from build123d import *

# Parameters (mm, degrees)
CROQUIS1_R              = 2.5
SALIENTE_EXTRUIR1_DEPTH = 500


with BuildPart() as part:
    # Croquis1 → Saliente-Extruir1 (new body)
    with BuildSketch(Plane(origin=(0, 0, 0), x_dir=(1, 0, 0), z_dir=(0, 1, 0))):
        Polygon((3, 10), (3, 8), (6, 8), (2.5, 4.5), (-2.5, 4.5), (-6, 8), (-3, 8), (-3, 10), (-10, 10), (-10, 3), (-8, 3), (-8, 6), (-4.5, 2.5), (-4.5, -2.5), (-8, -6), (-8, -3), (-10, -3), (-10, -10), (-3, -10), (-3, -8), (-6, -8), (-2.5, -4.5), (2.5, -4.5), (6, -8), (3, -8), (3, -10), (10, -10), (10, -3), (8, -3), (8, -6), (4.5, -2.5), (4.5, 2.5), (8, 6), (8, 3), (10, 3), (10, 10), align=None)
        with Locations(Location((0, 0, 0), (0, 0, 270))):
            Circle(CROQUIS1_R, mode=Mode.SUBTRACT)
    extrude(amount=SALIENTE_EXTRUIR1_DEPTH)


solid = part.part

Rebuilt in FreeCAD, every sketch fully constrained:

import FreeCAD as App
import Part
import Sketcher

V = App.Vector


def add_polygon(sketch, points):
    """Adds a closed chain of lines whose ends are joined by coincident constraints."""
    first, n = sketch.GeometryCount, len(points)
    for a, b in zip(points, points[1:] + points[:1]):
        sketch.addGeometry(Part.LineSegment(App.Vector(*a, 0), App.Vector(*b, 0)), False)
    for i in range(n):
        sketch.addConstraint(Sketcher.Constraint("Coincident", first + i, 2, first + (i + 1) % n, 1))

doc = App.newDocument("Part")
body = doc.addObject("PartDesign::Body", "Body")

# Sketch on XZ plane
sketch1 = body.newObject("Sketcher::SketchObject", "Sketch")
sketch1.AttachmentSupport = (doc.getObject("XZ_Plane"), [""])
sketch1.MapMode = "FlatFace"
add_polygon(sketch1, [(3, -10), (3, -8), (6, -8), (2.5, -4.5), (-2.5, -4.5), (-6, -8), (-3, -8), (-3, -10), (-10, -10), (-10, -3), (-8, -3), (-8, -6), (-4.5, -2.5), (-4.5, 2.5), (-8, 6), (-8, 3), (-10, 3), (-10, 10), (-3, 10), (-3, 8), (-6, 8), (-2.5, 4.5), (2.5, 4.5), (6, 8), (3, 8), (3, 10), (10, 10), (10, 3), (8, 3), (8, 6), (4.5, 2.5), (4.5, -2.5), (8, -6), (8, -3), (10, -3), (10, -10)])  # lines 0-35
sketch1.addGeometry(Part.Circle(V(0, 0, 0), V(0, 0, 1), 2.5), False)  # 36
sketch1.addConstraint([
    Sketcher.Constraint("Vertical", 0),
    Sketcher.Constraint("Horizontal", 1),
    Sketcher.Constraint("Horizontal", 3),
    Sketcher.Constraint("Horizontal", 5),
    Sketcher.Constraint("Vertical", 6),
    Sketcher.Constraint("Horizontal", 7),
    Sketcher.Constraint("Vertical", 8),
    Sketcher.Constraint("Horizontal", 9),
    Sketcher.Constraint("Vertical", 10),
    Sketcher.Constraint("Vertical", 12),
    Sketcher.Constraint("Vertical", 14),
    Sketcher.Constraint("Horizontal", 15),
    Sketcher.Constraint("Vertical", 16),
    Sketcher.Constraint("Horizontal", 17),
    Sketcher.Constraint("Vertical", 18),
    Sketcher.Constraint("Horizontal", 19),
    Sketcher.Constraint("Horizontal", 21),
    Sketcher.Constraint("Horizontal", 23),
    Sketcher.Constraint("Vertical", 24),
    Sketcher.Constraint("Horizontal", 25),
    Sketcher.Constraint("Vertical", 26),
    Sketcher.Constraint("Horizontal", 27),
    Sketcher.Constraint("Vertical", 28),
    Sketcher.Constraint("Vertical", 30),
    Sketcher.Constraint("Vertical", 32),
    Sketcher.Constraint("Horizontal", 33),
    Sketcher.Constraint("Vertical", 34),
    Sketcher.Constraint("Horizontal", 35),
    Sketcher.Constraint("Coincident", 36, 3, -1, 1),
    Sketcher.Constraint("Symmetric", 0, 2, 18, 2, -1, 1),
    Sketcher.Constraint("Symmetric", 2, 2, 20, 2, -1, 1),
    Sketcher.Constraint("Symmetric", 4, 2, 22, 2, -1, 1),
    Sketcher.Constraint("Symmetric", 6, 2, 24, 2, -1, 1),
    Sketcher.Constraint("Symmetric", 8, 2, 26, 2, -1, 1),
    Sketcher.Constraint("Symmetric", 10, 2, 28, 2, -1, 1),
    Sketcher.Constraint("Symmetric", 11, 2, 29, 2, -1, 1),
    Sketcher.Constraint("Symmetric", 13, 2, 31, 2, -1, 1),
    Sketcher.Constraint("Symmetric", 15, 2, 33, 2, -1, 1),
    Sketcher.Constraint("Symmetric", 1, 2, 4, 2, -2),
    Sketcher.Constraint("Symmetric", 17, 2, 24, 2, -2),
    Sketcher.Constraint("Symmetric", 15, 2, 26, 2, -2),
    Sketcher.Constraint("Symmetric", 13, 2, 28, 2, -2),
    Sketcher.Constraint("Perpendicular", 2, 4),
    Sketcher.Constraint("Parallel", 4, 11),
    Sketcher.Constraint("Perpendicular", 11, 13),
    Sketcher.Constraint("Parallel", 13, 20),
    Sketcher.Constraint("Perpendicular", 20, 22),
    Sketcher.Constraint("Perpendicular", 29, 31),
    Sketcher.Constraint("Horizontal", 12, 2, 29, 2),
    Sketcher.Constraint("Horizontal", 7, 2, 34, 2),
    Sketcher.Constraint("Equal", 33, 0),
    Sketcher.Constraint("Equal", 35, 8),
    Sketcher.Constraint("Equal", 23, 10),
    Sketcher.Constraint("Equal", 21, 12),
    Sketcher.Constraint("Equal", 4, 11),
    Sketcher.Constraint("Diameter", 36, 5.0),
    Sketcher.Constraint("DistanceX", 1, 1, 1, 2, 3.0),
    Sketcher.Constraint("DistanceX", 3, 2, 3, 1, 5.0),
    Sketcher.Constraint("DistanceX", 7, 2, 7, 1, 7.0),
    Sketcher.Constraint("DistanceX", 9, 1, 9, 2, 2.0),
    Sketcher.Constraint("DistanceX", -1, 1, 0, 2, 3.0),
])
pad1 = body.newObject("PartDesign::Pad", "Pad")
pad1.Profile = sketch1
pad1.Length = 500
pad1.Reversed = True

doc.recompute()
